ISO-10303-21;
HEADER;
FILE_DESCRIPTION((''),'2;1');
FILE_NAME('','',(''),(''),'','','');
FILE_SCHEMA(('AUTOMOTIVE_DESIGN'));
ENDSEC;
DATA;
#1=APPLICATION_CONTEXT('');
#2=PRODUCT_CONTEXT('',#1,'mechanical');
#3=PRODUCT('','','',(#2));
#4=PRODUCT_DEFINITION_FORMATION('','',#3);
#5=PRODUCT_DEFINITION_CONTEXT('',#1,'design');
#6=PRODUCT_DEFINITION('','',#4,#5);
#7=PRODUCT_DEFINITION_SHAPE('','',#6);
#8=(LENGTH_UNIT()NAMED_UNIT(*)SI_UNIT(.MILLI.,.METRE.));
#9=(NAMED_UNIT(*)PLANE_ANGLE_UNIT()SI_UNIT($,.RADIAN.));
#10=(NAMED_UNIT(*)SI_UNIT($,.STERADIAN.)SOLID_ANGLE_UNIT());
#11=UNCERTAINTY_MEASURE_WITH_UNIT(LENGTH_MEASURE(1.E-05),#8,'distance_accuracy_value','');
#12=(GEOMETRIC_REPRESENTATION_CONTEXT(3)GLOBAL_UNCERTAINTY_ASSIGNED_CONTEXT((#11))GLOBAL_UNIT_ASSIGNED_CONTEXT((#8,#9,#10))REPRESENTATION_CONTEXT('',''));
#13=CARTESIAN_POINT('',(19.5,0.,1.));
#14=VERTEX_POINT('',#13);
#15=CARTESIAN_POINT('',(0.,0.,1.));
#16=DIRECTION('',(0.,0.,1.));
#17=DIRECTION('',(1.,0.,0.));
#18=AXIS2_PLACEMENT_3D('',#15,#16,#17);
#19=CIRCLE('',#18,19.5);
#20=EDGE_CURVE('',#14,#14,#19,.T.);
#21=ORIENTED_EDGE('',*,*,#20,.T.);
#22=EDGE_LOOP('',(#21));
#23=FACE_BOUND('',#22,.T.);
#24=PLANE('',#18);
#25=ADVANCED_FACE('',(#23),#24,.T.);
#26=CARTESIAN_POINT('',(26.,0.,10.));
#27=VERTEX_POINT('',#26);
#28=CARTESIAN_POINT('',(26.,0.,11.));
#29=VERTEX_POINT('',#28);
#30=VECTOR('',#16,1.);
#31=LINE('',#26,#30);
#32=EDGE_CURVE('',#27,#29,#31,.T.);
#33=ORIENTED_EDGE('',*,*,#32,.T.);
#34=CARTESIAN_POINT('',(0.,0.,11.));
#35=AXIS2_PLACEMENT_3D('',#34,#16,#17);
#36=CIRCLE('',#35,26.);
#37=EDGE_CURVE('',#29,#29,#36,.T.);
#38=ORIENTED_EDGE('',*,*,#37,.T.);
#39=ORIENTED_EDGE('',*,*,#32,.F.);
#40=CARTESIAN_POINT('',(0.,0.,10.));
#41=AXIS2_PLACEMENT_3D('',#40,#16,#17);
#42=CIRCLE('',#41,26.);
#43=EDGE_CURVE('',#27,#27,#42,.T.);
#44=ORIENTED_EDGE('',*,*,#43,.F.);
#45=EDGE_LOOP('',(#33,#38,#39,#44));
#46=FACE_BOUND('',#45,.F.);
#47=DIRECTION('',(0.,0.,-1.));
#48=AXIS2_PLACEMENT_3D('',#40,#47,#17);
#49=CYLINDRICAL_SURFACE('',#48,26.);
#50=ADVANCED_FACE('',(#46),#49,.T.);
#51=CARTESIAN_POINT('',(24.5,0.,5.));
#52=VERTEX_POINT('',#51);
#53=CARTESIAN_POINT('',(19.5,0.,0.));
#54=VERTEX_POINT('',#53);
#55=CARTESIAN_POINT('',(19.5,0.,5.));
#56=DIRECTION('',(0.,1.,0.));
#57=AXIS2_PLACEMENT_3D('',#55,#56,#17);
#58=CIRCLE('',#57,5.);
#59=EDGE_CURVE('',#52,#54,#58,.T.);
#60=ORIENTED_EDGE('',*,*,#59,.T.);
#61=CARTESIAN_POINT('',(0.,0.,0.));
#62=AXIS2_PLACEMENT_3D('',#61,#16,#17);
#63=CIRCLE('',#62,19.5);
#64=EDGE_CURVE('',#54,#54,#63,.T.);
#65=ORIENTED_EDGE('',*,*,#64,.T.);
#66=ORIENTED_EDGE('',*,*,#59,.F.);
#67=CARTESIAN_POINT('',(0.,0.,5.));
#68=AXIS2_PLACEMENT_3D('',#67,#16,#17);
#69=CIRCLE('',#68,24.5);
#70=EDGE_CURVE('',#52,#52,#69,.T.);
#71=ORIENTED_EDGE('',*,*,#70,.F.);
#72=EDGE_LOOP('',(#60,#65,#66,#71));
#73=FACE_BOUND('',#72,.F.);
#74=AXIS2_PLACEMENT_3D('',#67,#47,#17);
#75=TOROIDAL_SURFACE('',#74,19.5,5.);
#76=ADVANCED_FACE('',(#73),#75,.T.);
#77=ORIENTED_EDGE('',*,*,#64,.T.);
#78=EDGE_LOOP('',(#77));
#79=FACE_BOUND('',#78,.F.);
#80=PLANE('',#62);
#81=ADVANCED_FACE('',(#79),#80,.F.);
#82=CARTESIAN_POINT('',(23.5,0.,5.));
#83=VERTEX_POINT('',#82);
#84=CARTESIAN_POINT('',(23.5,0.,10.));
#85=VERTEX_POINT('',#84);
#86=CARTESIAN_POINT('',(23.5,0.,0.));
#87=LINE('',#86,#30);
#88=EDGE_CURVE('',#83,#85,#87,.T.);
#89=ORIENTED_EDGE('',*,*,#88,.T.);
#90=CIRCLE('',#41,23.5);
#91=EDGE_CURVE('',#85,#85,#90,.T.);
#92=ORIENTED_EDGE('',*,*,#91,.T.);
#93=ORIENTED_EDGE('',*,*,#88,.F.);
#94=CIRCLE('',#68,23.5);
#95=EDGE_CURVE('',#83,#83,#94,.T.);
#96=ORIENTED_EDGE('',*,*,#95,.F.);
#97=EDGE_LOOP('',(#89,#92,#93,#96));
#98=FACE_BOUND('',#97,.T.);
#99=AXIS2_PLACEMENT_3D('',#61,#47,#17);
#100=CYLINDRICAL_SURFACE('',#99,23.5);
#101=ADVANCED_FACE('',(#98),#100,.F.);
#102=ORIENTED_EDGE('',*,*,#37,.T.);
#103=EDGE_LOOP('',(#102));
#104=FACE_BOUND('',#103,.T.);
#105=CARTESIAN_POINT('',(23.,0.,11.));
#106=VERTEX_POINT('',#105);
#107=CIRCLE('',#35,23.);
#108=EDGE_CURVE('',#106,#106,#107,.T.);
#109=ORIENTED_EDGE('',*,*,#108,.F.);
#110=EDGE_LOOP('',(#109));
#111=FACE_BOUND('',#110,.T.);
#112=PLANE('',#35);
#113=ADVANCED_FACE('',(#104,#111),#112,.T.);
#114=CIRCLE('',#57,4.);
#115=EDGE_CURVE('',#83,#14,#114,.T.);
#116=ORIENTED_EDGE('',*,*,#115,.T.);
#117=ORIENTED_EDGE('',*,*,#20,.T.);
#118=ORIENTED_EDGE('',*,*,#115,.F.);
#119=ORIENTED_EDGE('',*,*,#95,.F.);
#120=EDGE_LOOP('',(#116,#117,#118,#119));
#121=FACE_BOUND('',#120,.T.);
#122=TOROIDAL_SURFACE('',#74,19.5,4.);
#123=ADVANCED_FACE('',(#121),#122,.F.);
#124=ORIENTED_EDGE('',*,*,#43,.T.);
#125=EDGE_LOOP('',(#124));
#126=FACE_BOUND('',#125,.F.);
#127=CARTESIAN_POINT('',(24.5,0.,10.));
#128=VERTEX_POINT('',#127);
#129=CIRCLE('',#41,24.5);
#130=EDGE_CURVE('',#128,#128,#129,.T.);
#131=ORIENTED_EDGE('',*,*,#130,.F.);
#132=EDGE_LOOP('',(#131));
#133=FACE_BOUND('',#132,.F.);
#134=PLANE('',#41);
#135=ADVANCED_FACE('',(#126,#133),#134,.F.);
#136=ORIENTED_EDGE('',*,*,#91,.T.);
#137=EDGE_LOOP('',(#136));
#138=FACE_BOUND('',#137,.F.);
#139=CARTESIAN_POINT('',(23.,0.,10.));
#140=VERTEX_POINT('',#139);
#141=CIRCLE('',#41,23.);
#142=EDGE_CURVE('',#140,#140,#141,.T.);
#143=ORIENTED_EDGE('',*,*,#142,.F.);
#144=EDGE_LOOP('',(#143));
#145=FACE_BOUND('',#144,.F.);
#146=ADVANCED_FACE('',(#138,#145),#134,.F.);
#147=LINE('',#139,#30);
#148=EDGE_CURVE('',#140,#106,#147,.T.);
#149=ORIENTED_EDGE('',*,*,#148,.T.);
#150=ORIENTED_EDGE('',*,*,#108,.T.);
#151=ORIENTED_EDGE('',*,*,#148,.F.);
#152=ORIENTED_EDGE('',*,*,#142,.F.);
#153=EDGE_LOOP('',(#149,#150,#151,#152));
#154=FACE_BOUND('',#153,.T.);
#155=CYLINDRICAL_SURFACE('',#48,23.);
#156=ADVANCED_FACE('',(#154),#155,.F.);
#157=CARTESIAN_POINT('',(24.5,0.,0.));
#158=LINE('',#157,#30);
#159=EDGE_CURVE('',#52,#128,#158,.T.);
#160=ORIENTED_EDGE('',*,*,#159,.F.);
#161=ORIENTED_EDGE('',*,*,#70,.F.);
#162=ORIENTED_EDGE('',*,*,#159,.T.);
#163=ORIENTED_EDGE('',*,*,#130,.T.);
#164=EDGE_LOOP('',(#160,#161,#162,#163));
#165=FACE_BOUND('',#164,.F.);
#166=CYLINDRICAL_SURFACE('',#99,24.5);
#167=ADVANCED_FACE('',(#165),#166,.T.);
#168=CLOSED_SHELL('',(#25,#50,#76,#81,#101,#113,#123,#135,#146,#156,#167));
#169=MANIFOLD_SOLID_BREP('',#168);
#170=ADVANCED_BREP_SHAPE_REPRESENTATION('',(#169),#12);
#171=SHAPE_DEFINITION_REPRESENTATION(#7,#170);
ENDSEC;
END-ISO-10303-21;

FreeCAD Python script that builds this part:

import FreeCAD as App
import Part
import Sketcher

V = App.Vector


def edges_at(feature, points):
    """Names of the edges that pass closest to the given points."""
    edges = feature.Shape.Edges
    near = lambda p: min(range(len(edges)), key=lambda i: edges[i].distToShape(Part.Vertex(*p))[0])
    return sorted({f"Edge{near(p) + 1}" for p in points})


def faces_at(feature, points):
    """Names of the faces that lie closest to the given points."""
    faces = feature.Shape.Faces
    near = lambda p: min(range(len(faces)), key=lambda i: faces[i].distToShape(Part.Vertex(*p))[0])
    return sorted({f"Face{near(p) + 1}" for p in points})

doc = App.newDocument("Part")
params = doc.addObject("Spreadsheet::Sheet", "Params")
for row, (alias, value) in enumerate([
    ("sketch1_diameter", "49 mm"),
    ("pad1_length", "10 mm"),
    ("fillet_radius", "5 mm"),
    ("thickness_wall", "1 mm"),
    ("sketch2_diameter", "52 mm"),
    ("sketch2_diameter2", "46 mm"),
    ("pad2_length", "1 mm"),
], start=1):
    params.set(f"A{row}", alias)
    params.set(f"B{row}", "=" + value)
    params.setAlias(f"B{row}", alias)

body = doc.addObject("PartDesign::Body", "Body")

# Sketch on XY plane
sketch1 = body.newObject("Sketcher::SketchObject", "Sketch")
sketch1.AttachmentSupport = (doc.getObject("XY_Plane"), [""])
sketch1.MapMode = "FlatFace"
sketch1.addGeometry(Part.Circle(V(0, 0, 0), V(0, 0, 1), 24.5), False)
sketch1.addConstraint(Sketcher.Constraint("Coincident", 0, 3, -1, 1))
sketch1.addConstraint(Sketcher.Constraint("Diameter", 0, 49.0))
sketch1.setExpression("Constraints[1]", "Params.sketch1_diameter")
pad1 = body.newObject("PartDesign::Pad", "Pad")
pad1.Profile = sketch1
pad1.setExpression("Length", "Params.pad1_length")
doc.recompute()

fillet = body.newObject("PartDesign::Fillet", "Fillet")
fillet.Base = (pad1, edges_at(pad1, [(-24.5, 0, 0)]))
fillet.setExpression("Radius", "Params.fillet_radius")
doc.recompute()

thickness = body.newObject("PartDesign::Thickness", "Thickness")
thickness.Base = (fillet, faces_at(fillet, [(0, 0, 10)]))
thickness.setExpression("Value", "Params.thickness_wall")
thickness.Reversed = True
thickness.Join = "Arc"

# Sketch on XY plane
sketch2 = body.newObject("Sketcher::SketchObject", "Sketch001")
sketch2.AttachmentSupport = (doc.getObject("XY_Plane"), [""])
sketch2.MapMode = "FlatFace"
sketch2.AttachmentOffset = App.Placement(V(0, 0, 10), App.Rotation())
sketch2.addGeometry(Part.Circle(V(0, 0, 0), V(0, 0, 1), 26), False)
sketch2.addGeometry(Part.Circle(V(0, 0, 0), V(0, 0, 1), 23), False)
sketch2.addConstraint(Sketcher.Constraint("Coincident", 0, 3, -1, 1))
sketch2.addConstraint(Sketcher.Constraint("Coincident", 1, 3, -1, 1))
sketch2.addConstraint(Sketcher.Constraint("Diameter", 0, 52.0))
sketch2.addConstraint(Sketcher.Constraint("Diameter", 1, 46.0))
sketch2.setExpression("Constraints[2]", "Params.sketch2_diameter")
sketch2.setExpression("Constraints[3]", "Params.sketch2_diameter2")
pad2 = body.newObject("PartDesign::Pad", "Pad001")
pad2.Profile = sketch2
pad2.setExpression("Length", "Params.pad2_length")

doc.recompute()
